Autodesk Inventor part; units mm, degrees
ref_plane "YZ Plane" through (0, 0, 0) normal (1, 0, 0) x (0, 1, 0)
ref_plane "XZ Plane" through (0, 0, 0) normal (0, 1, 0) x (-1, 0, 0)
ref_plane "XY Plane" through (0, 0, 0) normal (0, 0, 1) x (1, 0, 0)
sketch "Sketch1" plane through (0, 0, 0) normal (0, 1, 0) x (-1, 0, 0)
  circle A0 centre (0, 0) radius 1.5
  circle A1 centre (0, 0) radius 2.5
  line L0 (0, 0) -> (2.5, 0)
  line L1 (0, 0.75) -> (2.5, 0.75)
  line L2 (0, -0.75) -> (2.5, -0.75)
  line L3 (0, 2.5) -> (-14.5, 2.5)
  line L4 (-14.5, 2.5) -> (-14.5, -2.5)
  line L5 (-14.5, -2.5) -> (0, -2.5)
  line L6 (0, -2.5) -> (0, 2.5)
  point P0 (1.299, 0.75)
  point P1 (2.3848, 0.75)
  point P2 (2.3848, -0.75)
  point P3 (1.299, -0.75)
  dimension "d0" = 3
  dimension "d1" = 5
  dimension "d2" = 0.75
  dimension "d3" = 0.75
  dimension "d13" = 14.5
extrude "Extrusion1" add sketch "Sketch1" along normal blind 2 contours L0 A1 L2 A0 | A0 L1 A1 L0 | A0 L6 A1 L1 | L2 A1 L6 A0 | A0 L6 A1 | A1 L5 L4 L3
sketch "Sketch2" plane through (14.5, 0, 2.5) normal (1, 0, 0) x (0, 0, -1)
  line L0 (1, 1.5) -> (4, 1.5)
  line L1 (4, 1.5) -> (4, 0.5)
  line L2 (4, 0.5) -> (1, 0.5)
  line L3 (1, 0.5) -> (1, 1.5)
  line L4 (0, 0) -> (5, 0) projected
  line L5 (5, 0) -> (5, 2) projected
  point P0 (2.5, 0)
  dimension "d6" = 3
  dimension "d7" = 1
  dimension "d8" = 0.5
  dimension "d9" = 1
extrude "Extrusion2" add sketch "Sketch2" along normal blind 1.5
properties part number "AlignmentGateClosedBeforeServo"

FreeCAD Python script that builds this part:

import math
import FreeCAD as App
import Part
import Sketcher

V = App.Vector
Q = App.Units.Quantity


def add_polygon(sketch, points):
    """Adds a closed chain of lines whose ends are joined by coincident constraints."""
    first, n = sketch.GeometryCount, len(points)
    for a, b in zip(points, points[1:] + points[:1]):
        sketch.addGeometry(Part.LineSegment(App.Vector(*a, 0), App.Vector(*b, 0)), False)
    for i in range(n):
        sketch.addConstraint(Sketcher.Constraint("Coincident", first + i, 2, first + (i + 1) % n, 1))

doc = App.newDocument("Part")
params = doc.addObject("Spreadsheet::Sheet", "Params")
for row, (alias, value) in enumerate([
    ("sketch1_diameter", "3 mm"),
    ("sketch1_radius", "2.5 mm"),
    ("sketch1_width", "14.5 mm"),
    ("pad1_length", "2 mm"),
    ("sketch2_width", "1 mm"),
    ("sketch2_height", "3 mm"),
    ("pad2_length", "1.5 mm"),
], start=1):
    params.set(f"A{row}", alias)
    params.set(f"B{row}", "=" + value)
    params.setAlias(f"B{row}", alias)

body = doc.addObject("PartDesign::Body", "Body")

# Sketch on XZ plane
sketch1 = doc.addObject("Sketcher::SketchObject", "Sketch")
body.addObject(sketch1)
sketch1.AttachmentSupport = (doc.XZ_Plane, [""])
sketch1.MapMode = "FlatFace"
sketch1.addGeometry([
    Part.LineSegment(V(0, 2.5, 0), V(14.5, 2.5, 0)),  # 0
    Part.LineSegment(V(14.5, 2.5, 0), V(14.5, -2.5, 0)),  # 1
    Part.LineSegment(V(14.5, -2.5, 0), V(0, -2.5, 0)),  # 2
    Part.ArcOfCircle(Part.Circle(V(0, 0, 0), V(0, 0, 1), 2.5), math.radians(90), math.radians(270)),  # 3
    Part.Circle(V(0, 0, 0), V(0, 0, 1), 1.5),  # 4
], False)
sketch1.addConstraint([
    Sketcher.Constraint("Coincident", 0, 2, 1, 1),
    Sketcher.Constraint("Coincident", 1, 2, 2, 1),
    Sketcher.Constraint("Tangent", 2, 2, 3, 2),
    Sketcher.Constraint("Tangent", 3, 1, 0, 1),
    Sketcher.Constraint("Horizontal", 0),
    Sketcher.Constraint("Vertical", 1),
    Sketcher.Constraint("Horizontal", 2),
    Sketcher.Constraint("Coincident", 3, 3, -1, 1),
    Sketcher.Constraint("Coincident", 4, 3, -1, 1),
    Sketcher.Constraint("Diameter", 4, Q("3 mm")),
    Sketcher.Constraint("Radius", 3, Q("2.5 mm")),
    Sketcher.Constraint("DistanceX", 0, 1, 0, 2, Q("14.5 mm")),
])
sketch1.setExpression("Constraints[9]", "Params.sketch1_diameter")
sketch1.setExpression("Constraints[10]", "Params.sketch1_radius")
sketch1.setExpression("Constraints[11]", "Params.sketch1_width")
pad1 = doc.addObject("PartDesign::Pad", "Pad")
body.addObject(pad1)
pad1.Profile = sketch1
pad1.setExpression("Length", "Params.pad1_length")
pad1.Reversed = True

# Sketch on YZ plane
sketch2 = doc.addObject("Sketcher::SketchObject", "Sketch001")
body.addObject(sketch2)
sketch2.AttachmentSupport = (doc.YZ_Plane, [""])
sketch2.MapMode = "FlatFace"
sketch2.AttachmentOffset = App.Placement(V(0, 0, 14.5), App.Rotation())
add_polygon(sketch2, [(1.5, -1.5), (1.5, 1.5), (0.5, 1.5), (0.5, -1.5)])  # lines 0-3
sketch2.addConstraint([
    Sketcher.Constraint("Vertical", 0),
    Sketcher.Constraint("Horizontal", 1),
    Sketcher.Constraint("Vertical", 2),
    Sketcher.Constraint("Horizontal", 3),
    Sketcher.Constraint("DistanceX", 1, 2, 1, 1, Q("1 mm")),
    Sketcher.Constraint("DistanceY", 0, 1, 0, 2, Q("3 mm")),
    Sketcher.Constraint("DistanceX", -1, 1, 1, 2, Q("0.5 mm")),
    Sketcher.Constraint("DistanceY", -1, 1, 0, 2, Q("1.5 mm")),
])
sketch2.setExpression("Constraints[8]", "Params.sketch2_width")
sketch2.setExpression("Constraints[9]", "Params.sketch2_height")
pad2 = doc.addObject("PartDesign::Pad", "Pad001")
body.addObject(pad2)
pad2.Profile = sketch2
pad2.setExpression("Length", "Params.pad2_length")

doc.recompute()
